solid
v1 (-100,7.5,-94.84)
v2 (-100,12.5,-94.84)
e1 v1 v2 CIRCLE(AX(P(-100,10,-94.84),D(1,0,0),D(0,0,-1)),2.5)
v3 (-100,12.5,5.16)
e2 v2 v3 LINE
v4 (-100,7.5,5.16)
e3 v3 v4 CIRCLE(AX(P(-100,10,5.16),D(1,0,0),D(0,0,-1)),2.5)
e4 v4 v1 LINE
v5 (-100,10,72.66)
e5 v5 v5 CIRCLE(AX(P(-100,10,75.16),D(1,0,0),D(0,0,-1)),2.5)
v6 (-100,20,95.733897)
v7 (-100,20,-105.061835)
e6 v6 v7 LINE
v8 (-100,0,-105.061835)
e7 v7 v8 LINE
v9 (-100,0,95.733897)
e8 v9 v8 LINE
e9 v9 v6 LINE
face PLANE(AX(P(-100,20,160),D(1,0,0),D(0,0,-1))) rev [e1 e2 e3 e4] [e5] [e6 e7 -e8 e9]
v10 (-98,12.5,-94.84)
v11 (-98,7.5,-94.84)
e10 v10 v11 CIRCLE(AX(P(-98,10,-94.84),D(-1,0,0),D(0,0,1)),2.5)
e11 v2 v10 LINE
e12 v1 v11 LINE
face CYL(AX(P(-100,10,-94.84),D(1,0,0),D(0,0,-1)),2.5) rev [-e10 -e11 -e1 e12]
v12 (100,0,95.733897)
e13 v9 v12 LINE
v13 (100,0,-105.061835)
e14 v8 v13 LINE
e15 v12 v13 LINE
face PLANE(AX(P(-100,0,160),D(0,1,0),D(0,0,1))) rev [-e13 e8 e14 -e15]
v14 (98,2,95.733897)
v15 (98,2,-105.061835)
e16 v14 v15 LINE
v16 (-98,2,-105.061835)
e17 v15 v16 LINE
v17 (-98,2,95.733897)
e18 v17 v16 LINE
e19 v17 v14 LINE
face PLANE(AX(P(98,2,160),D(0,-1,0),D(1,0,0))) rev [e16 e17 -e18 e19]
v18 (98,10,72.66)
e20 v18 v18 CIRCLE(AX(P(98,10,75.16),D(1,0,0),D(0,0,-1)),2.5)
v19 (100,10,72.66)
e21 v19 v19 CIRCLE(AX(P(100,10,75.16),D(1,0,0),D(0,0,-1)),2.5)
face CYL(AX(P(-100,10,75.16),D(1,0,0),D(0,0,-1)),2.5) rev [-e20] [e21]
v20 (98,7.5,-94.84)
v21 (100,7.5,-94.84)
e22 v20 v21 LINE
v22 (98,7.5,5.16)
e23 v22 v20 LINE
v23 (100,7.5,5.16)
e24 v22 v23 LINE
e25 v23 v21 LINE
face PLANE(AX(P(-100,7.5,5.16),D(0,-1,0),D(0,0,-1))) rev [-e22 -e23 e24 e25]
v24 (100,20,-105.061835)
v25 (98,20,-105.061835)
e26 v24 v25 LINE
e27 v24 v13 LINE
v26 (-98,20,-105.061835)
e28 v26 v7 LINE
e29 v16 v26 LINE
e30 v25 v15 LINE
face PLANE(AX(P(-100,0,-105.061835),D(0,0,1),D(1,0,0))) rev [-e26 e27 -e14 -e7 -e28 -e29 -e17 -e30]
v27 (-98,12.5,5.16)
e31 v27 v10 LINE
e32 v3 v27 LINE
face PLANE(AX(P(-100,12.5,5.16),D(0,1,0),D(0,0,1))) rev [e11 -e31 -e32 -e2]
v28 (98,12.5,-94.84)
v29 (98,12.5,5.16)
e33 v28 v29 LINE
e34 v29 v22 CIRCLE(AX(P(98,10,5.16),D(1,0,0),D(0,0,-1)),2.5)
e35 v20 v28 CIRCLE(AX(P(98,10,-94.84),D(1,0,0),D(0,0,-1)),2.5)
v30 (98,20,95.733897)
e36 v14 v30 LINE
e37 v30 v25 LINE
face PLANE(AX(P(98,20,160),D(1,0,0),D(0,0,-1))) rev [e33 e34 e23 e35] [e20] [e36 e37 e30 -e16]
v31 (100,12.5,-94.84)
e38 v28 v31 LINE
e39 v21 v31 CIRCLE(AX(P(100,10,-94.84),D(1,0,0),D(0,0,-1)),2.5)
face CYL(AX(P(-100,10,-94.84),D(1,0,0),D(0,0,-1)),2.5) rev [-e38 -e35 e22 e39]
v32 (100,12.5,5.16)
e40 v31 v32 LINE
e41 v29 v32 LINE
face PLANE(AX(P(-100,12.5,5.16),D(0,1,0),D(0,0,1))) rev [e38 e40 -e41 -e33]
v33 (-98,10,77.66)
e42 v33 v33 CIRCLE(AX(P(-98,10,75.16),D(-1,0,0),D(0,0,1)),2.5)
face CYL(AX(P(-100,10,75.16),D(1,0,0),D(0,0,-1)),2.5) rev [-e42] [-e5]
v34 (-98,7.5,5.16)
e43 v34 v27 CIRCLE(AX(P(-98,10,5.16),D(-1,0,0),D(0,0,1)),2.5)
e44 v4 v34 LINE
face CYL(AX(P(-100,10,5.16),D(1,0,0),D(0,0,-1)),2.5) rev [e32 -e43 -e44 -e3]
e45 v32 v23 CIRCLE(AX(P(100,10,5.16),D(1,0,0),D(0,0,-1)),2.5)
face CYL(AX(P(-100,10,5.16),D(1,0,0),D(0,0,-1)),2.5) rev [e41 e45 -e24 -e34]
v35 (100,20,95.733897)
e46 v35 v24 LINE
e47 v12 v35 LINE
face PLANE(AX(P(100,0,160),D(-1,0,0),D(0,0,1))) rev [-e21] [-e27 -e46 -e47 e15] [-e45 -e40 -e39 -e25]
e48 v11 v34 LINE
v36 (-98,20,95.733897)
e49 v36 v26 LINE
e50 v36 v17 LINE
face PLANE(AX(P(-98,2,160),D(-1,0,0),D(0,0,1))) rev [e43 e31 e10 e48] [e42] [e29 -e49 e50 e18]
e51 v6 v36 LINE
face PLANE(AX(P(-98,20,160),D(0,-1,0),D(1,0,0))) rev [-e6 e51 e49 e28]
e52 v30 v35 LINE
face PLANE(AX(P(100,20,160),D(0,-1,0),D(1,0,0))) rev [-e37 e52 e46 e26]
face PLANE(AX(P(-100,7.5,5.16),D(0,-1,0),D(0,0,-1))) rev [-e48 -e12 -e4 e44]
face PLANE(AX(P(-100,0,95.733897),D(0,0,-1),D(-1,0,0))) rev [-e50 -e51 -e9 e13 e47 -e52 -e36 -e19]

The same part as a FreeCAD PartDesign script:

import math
import FreeCAD as App
import Part
import Sketcher


def add_polygon(sketch, points):
    """Adds a closed chain of lines whose ends are joined by coincident constraints."""
    first, n = sketch.GeometryCount, len(points)
    for a, b in zip(points, points[1:] + points[:1]):
        sketch.addGeometry(Part.LineSegment(App.Vector(*a, 0), App.Vector(*b, 0)), False)
    for i in range(n):
        sketch.addConstraint(Sketcher.Constraint("Coincident", first + i, 2, first + (i + 1) % n, 1))

doc = App.newDocument("Part")
body = doc.addObject("PartDesign::Body", "Body")

sketch1 = body.newObject("Sketcher::SketchObject", "Sketch")
sketch1.AttachmentSupport = (doc.getObject("XY_Plane"), [""])
sketch1.MapMode = "FlatFace"
add_polygon(sketch1, [(-98, 20), (-100, 20), (-100, 0), (100, 0), (100, 20), (98, 20), (98, 2), (-98, 2)])
sketch1.addConstraint([
    Sketcher.Constraint("Horizontal", 0),
    Sketcher.Constraint("Vertical", 1),
    Sketcher.Constraint("Horizontal", 2),
    Sketcher.Constraint("Vertical", 3),
    Sketcher.Constraint("Horizontal", 4),
    Sketcher.Constraint("Vertical", 5),
    Sketcher.Constraint("Horizontal", 6),
    Sketcher.Constraint("Vertical", 7),
    Sketcher.Constraint("Symmetric", 1, 2, 2, 2, -1, 1),
    Sketcher.Constraint("Symmetric", 4, 2, 7, 2, -2),
    Sketcher.Constraint("DistanceX", 0, 2, 0, 1, 2.0),
    Sketcher.Constraint("DistanceX", 2, 1, 2, 2, 200.0),
    Sketcher.Constraint("DistanceY", 1, 2, 1, 1, 20.0),
    Sketcher.Constraint("DistanceY", 5, 2, 5, 1, 18.0),
])
pad1 = body.newObject("PartDesign::Pad", "Pad")
pad1.Profile = sketch1
pad1.Length = 320
pad1.Midplane = True

sketch2 = body.newObject("Sketcher::SketchObject", "Sketch001")
sketch2.AttachmentSupport = (doc.getObject("YZ_Plane"), [""])
sketch2.MapMode = "FlatFace"
sketch2.AttachmentOffset = App.Placement(App.Vector(0, 0, 100), App.Rotation())
sketch2.addGeometry([
    Part.Circle(App.Vector(10, 75.16, 0), App.Vector(0, 0, 1), 2.5),
    Part.LineSegment(App.Vector(12.5, -94.84, 0), App.Vector(12.5, 5.16, 0)),
    Part.ArcOfCircle(Part.Circle(App.Vector(10, 5.16, 0), App.Vector(0, 0, 1), 2.5), math.radians(0), math.radians(180)),
    Part.LineSegment(App.Vector(7.5, 5.16, 0), App.Vector(7.5, -94.84, 0)),
    Part.ArcOfCircle(Part.Circle(App.Vector(10, -94.84, 0), App.Vector(0, 0, 1), 2.5), math.radians(180), math.radians(360)),
], False)
sketch2.addConstraint([
    Sketcher.Constraint("Tangent", 1, 2, 2, 1),
    Sketcher.Constraint("Tangent", 2, 2, 3, 1),
    Sketcher.Constraint("Tangent", 3, 2, 4, 1),
    Sketcher.Constraint("Tangent", 4, 2, 1, 1),
    Sketcher.Constraint("Vertical", 1),
    Sketcher.Constraint("Vertical", 3),
    Sketcher.Constraint("Equal", 0, 2),
    Sketcher.Constraint("Vertical", 0, 3, 2, 3),
    Sketcher.Constraint("Diameter", 0, 5.0),
    Sketcher.Constraint("DistanceY", 1, 1, 1, 2, 100.0),
    Sketcher.Constraint("DistanceX", -1, 1, 0, 3, 10.0),
    Sketcher.Constraint("DistanceY", 2, 3, 0, 3, 70.0),
    Sketcher.Constraint("DistanceY", -1, 1, 0, 3, 75.16),
])
pocket1 = body.newObject("PartDesign::Pocket", "Pocket")
pocket1.Profile = sketch2
pocket1.Type = "ThroughAll"

sketch3 = body.newObject("Sketcher::SketchObject", "Sketch002")
sketch3.AttachmentSupport = (doc.getObject("YZ_Plane"), [""])
sketch3.MapMode = "FlatFace"
sketch3.AttachmentOffset = App.Placement(App.Vector(0, 0, 100), App.Rotation())
add_polygon(sketch3, [(56.246544, -105.061835), (0, -105.061835), (0, -160), (56.246544, -160)])
sketch3.addConstraint([
    Sketcher.Constraint("Horizontal", 0),
    Sketcher.Constraint("Vertical", 1),
    Sketcher.Constraint("Horizontal", 2),
    Sketcher.Constraint("Vertical", 3),
    Sketcher.Constraint("PointOnObject", 0, 2, -2),
    Sketcher.Constraint("DistanceY", 1, 2, -1, 1, 160.0),
    Sketcher.Constraint("DistanceX", 0, 2, 0, 1, 56.246544),
    Sketcher.Constraint("DistanceY", 1, 2, 1, 1, 54.938165),
])
pocket2 = body.newObject("PartDesign::Pocket", "Pocket001")
pocket2.Profile = sketch3
pocket2.Type = "ThroughAll"

sketch4 = body.newObject("Sketcher::SketchObject", "Sketch003")
sketch4.AttachmentSupport = (doc.getObject("YZ_Plane"), [""])
sketch4.MapMode = "FlatFace"
sketch4.AttachmentOffset = App.Placement(App.Vector(0, 0, 100), App.Rotation())
add_polygon(sketch4, [(38.44102, 160), (0, 160), (0, 95.733897), (38.44102, 95.733897)])
sketch4.addConstraint([
    Sketcher.Constraint("Horizontal", 0),
    Sketcher.Constraint("Vertical", 1),
    Sketcher.Constraint("Horizontal", 2),
    Sketcher.Constraint("Vertical", 3),
    Sketcher.Constraint("PointOnObject", 0, 2, -2),
    Sketcher.Constraint("DistanceY", -1, 1, 0, 2, 160.0),
    Sketcher.Constraint("DistanceX", 0, 2, 0, 1, 38.44102),
    Sketcher.Constraint("DistanceY", 1, 2, 1, 1, 64.266103),
])
pocket3 = body.newObject("PartDesign::Pocket", "Pocket002")
pocket3.Profile = sketch4
pocket3.Type = "ThroughAll"

doc.recompute()
